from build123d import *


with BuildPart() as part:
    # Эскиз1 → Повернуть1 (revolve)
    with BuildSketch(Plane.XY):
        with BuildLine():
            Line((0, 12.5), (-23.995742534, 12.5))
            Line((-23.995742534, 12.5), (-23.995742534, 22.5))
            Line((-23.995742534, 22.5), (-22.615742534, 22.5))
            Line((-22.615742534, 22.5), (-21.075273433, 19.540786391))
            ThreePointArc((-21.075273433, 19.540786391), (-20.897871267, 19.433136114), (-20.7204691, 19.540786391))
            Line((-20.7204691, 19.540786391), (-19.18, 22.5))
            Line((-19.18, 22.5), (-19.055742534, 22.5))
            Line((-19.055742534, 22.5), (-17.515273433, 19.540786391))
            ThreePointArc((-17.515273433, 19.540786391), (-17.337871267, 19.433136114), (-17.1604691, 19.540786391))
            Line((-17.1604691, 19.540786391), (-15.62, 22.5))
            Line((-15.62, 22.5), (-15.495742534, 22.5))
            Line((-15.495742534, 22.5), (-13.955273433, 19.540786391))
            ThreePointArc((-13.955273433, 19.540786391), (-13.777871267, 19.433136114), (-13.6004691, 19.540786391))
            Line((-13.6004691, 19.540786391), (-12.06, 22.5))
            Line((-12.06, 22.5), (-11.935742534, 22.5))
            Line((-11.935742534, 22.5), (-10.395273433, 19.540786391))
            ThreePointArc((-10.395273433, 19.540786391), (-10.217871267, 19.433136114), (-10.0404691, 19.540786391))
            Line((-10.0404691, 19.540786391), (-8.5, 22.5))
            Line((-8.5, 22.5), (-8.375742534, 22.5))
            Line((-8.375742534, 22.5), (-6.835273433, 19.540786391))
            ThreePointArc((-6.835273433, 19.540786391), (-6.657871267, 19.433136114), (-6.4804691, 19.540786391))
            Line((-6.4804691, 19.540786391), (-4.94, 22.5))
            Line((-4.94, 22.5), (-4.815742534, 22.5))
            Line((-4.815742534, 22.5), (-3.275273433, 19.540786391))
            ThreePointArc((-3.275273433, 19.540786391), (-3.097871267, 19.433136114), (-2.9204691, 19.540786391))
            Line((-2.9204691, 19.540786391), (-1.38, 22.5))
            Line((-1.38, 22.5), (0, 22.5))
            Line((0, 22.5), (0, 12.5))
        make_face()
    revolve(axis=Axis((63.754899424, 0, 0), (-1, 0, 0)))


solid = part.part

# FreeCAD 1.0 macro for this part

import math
import FreeCAD as App
import Part
import Sketcher
Q = App.Units.Quantity

doc = App.newDocument("Part")
body = doc.addObject("PartDesign::Body", "Body")

# Sketch on XY plane
sketch1 = body.newObject("Sketcher::SketchObject", "Sketch")
sketch1.AttachmentSupport = (doc.getObject("XY_Plane"), [""])
sketch1.MapMode = "FlatFace"
sketch1.addGeometry([
    Part.LineSegment(App.Vector(-24, 12.5, 0), App.Vector(0, 12.5, 0)),  # 0
    Part.LineSegment(App.Vector(0, 12.5, 0), App.Vector(0, 22.5, 0)),  # 1
    Part.LineSegment(App.Vector(0, 22.5, 0), App.Vector(-1.38, 22.5, 0)),  # 2
    Part.LineSegment(App.Vector(-1.38, 22.5, 0), App.Vector(-2.92, 19.54, 0)),  # 3
    Part.ArcOfCircle(Part.Circle(App.Vector(-3.1, 19.63, 0), App.Vector(0, 0, 1), 0.2), math.radians(-152), math.radians(-28)),  # 4
    Part.LineSegment(App.Vector(-3.28, 19.54, 0), App.Vector(-4.82, 22.5, 0)),  # 5
    Part.LineSegment(App.Vector(-4.82, 22.5, 0), App.Vector(-4.94, 22.5, 0)),  # 6
    Part.LineSegment(App.Vector(-4.94, 22.5, 0), App.Vector(-6.48, 19.54, 0)),  # 7
    Part.ArcOfCircle(Part.Circle(App.Vector(-6.66, 19.63, 0), App.Vector(0, 0, 1), 0.2), math.radians(-152), math.radians(-28)),  # 8
    Part.LineSegment(App.Vector(-6.84, 19.54, 0), App.Vector(-8.38, 22.5, 0)),  # 9
    Part.LineSegment(App.Vector(-8.38, 22.5, 0), App.Vector(-8.5, 22.5, 0)),  # 10
    Part.LineSegment(App.Vector(-8.5, 22.5, 0), App.Vector(-10.04, 19.54, 0)),  # 11
    Part.ArcOfCircle(Part.Circle(App.Vector(-10.22, 19.63, 0), App.Vector(0, 0, 1), 0.2), math.radians(-152), math.radians(-28)),  # 12
    Part.LineSegment(App.Vector(-10.4, 19.54, 0), App.Vector(-11.94, 22.5, 0)),  # 13
    Part.LineSegment(App.Vector(-11.94, 22.5, 0), App.Vector(-12.06, 22.5, 0)),  # 14
    Part.LineSegment(App.Vector(-12.06, 22.5, 0), App.Vector(-13.6, 19.54, 0)),  # 15
    Part.ArcOfCircle(Part.Circle(App.Vector(-13.78, 19.63, 0), App.Vector(0, 0, 1), 0.2), math.radians(-152), math.radians(-28)),  # 16
    Part.LineSegment(App.Vector(-13.96, 19.54, 0), App.Vector(-15.5, 22.5, 0)),  # 17
    Part.LineSegment(App.Vector(-15.5, 22.5, 0), App.Vector(-15.62, 22.5, 0)),  # 18
    Part.LineSegment(App.Vector(-15.62, 22.5, 0), App.Vector(-17.16, 19.54, 0)),  # 19
    Part.ArcOfCircle(Part.Circle(App.Vector(-17.34, 19.63, 0), App.Vector(0, 0, 1), 0.2), math.radians(-152), math.radians(-28)),  # 20
    Part.LineSegment(App.Vector(-17.52, 19.54, 0), App.Vector(-19.06, 22.5, 0)),  # 21
    Part.LineSegment(App.Vector(-19.06, 22.5, 0), App.Vector(-19.18, 22.5, 0)),  # 22
    Part.LineSegment(App.Vector(-19.18, 22.5, 0), App.Vector(-20.72, 19.54, 0)),  # 23
    Part.ArcOfCircle(Part.Circle(App.Vector(-20.9, 19.63, 0), App.Vector(0, 0, 1), 0.2), math.radians(-152), math.radians(-28)),  # 24
    Part.LineSegment(App.Vector(-21.08, 19.54, 0), App.Vector(-22.62, 22.5, 0)),  # 25
    Part.LineSegment(App.Vector(-22.62, 22.5, 0), App.Vector(-24, 22.5, 0)),  # 26
    Part.LineSegment(App.Vector(-24, 22.5, 0), App.Vector(-24, 12.5, 0)),  # 27
], False)
sketch1.addConstraint([
    Sketcher.Constraint("Coincident", 0, 2, 1, 1),
    Sketcher.Constraint("Coincident", 1, 2, 2, 1),
    Sketcher.Constraint("Coincident", 2, 2, 3, 1),
    Sketcher.Constraint("Tangent", 3, 2, 4, 2),
    Sketcher.Constraint("Tangent", 4, 1, 5, 1),
    Sketcher.Constraint("Coincident", 5, 2, 6, 1),
    Sketcher.Constraint("Coincident", 6, 2, 7, 1),
    Sketcher.Constraint("Tangent", 7, 2, 8, 2),
    Sketcher.Constraint("Tangent", 8, 1, 9, 1),
    Sketcher.Constraint("Coincident", 9, 2, 10, 1),
    Sketcher.Constraint("Coincident", 10, 2, 11, 1),
    Sketcher.Constraint("Tangent", 11, 2, 12, 2),
    Sketcher.Constraint("Tangent", 12, 1, 13, 1),
    Sketcher.Constraint("Coincident", 13, 2, 14, 1),
    Sketcher.Constraint("Coincident", 14, 2, 15, 1),
    Sketcher.Constraint("Tangent", 15, 2, 16, 2),
    Sketcher.Constraint("Tangent", 16, 1, 17, 1),
    Sketcher.Constraint("Coincident", 17, 2, 18, 1),
    Sketcher.Constraint("Coincident", 18, 2, 19, 1),
    Sketcher.Constraint("Tangent", 19, 2, 20, 2),
    Sketcher.Constraint("Tangent", 20, 1, 21, 1),
    Sketcher.Constraint("Coincident", 21, 2, 22, 1),
    Sketcher.Constraint("Coincident", 22, 2, 23, 1),
    Sketcher.Constraint("Tangent", 23, 2, 24, 2),
    Sketcher.Constraint("Tangent", 24, 1, 25, 1),
    Sketcher.Constraint("Coincident", 25, 2, 26, 1),
    Sketcher.Constraint("Coincident", 26, 2, 27, 1),
    Sketcher.Constraint("Coincident", 27, 2, 0, 1),
    Sketcher.Constraint("Horizontal", 0),
    Sketcher.Constraint("Vertical", 1),
    Sketcher.Constraint("Horizontal", 2),
    Sketcher.Constraint("Horizontal", 6),
    Sketcher.Constraint("Horizontal", 10),
    Sketcher.Constraint("Horizontal", 14),
    Sketcher.Constraint("Horizontal", 18),
    Sketcher.Constraint("Horizontal", 22),
    Sketcher.Constraint("Horizontal", 26),
    Sketcher.Constraint("Vertical", 27),
    Sketcher.Constraint("Equal", 4, 8),
    Sketcher.Constraint("Equal", 8, 12),
    Sketcher.Constraint("Equal", 12, 16),
    Sketcher.Constraint("Equal", 16, 20),
    Sketcher.Constraint("Equal", 20, 24),
    Sketcher.Constraint("PointOnObject", 0, 2, -2),
    Sketcher.Constraint("Parallel", 3, 7),
    Sketcher.Constraint("Parallel", 5, 9),
    Sketcher.Constraint("Parallel", 7, 11),
    Sketcher.Constraint("Parallel", 9, 13),
    Sketcher.Constraint("Parallel", 11, 15),
    Sketcher.Constraint("Parallel", 13, 17),
    Sketcher.Constraint("Parallel", 15, 19),
    Sketcher.Constraint("Parallel", 17, 21),
    Sketcher.Constraint("Parallel", 19, 23),
    Sketcher.Constraint("Parallel", 21, 25),
    Sketcher.Constraint("Horizontal", 4, 3, 8, 3),
    Sketcher.Constraint("Horizontal", 8, 3, 12, 3),
    Sketcher.Constraint("Horizontal", 12, 3, 16, 3),
    Sketcher.Constraint("Horizontal", 16, 3, 20, 3),
    Sketcher.Constraint("Horizontal", 20, 3, 24, 3),
    Sketcher.Constraint("Horizontal", 3, 2, 4, 1),
    Sketcher.Constraint("Horizontal", 2, 2, 5, 2),
    Sketcher.Constraint("Horizontal", 6, 2, 9, 2),
    Sketcher.Constraint("Horizontal", 10, 2, 13, 2),
    Sketcher.Constraint("Horizontal", 14, 2, 17, 2),
    Sketcher.Constraint("Horizontal", 18, 2, 21, 2),
    Sketcher.Constraint("Horizontal", 22, 2, 25, 2),
    Sketcher.Constraint("Equal", 6, 10),
    Sketcher.Constraint("Equal", 10, 14),
    Sketcher.Constraint("Equal", 14, 18),
    Sketcher.Constraint("Equal", 18, 22),
    Sketcher.Constraint("Equal", 2, 26),
    Sketcher.Constraint("Radius", 4, Q("0.2 mm")),
    Sketcher.Constraint("DistanceY", 1, 1, 1, 2, Q("10 mm")),
    Sketcher.Constraint("Angle", 3, Q("-117.5 deg")),
    Sketcher.Constraint("DistanceX", 2, 2, 2, 1, Q("1.38 mm")),
    Sketcher.Constraint("DistanceY", -1, 1, 0, 2, Q("12.5 mm")),
    Sketcher.Constraint("DistanceX", 10, 2, -1, 1, Q("8.5 mm")),
    Sketcher.Constraint("DistanceX", 0, 1, 0, 2, Q("23.995743 mm")),
])
revolution = body.newObject("PartDesign::Revolution", "Revolution")
revolution.Profile = sketch1
revolution.ReferenceAxis = (sketch1, ["H_Axis"])
revolution.Angle = 360

doc.recompute()
